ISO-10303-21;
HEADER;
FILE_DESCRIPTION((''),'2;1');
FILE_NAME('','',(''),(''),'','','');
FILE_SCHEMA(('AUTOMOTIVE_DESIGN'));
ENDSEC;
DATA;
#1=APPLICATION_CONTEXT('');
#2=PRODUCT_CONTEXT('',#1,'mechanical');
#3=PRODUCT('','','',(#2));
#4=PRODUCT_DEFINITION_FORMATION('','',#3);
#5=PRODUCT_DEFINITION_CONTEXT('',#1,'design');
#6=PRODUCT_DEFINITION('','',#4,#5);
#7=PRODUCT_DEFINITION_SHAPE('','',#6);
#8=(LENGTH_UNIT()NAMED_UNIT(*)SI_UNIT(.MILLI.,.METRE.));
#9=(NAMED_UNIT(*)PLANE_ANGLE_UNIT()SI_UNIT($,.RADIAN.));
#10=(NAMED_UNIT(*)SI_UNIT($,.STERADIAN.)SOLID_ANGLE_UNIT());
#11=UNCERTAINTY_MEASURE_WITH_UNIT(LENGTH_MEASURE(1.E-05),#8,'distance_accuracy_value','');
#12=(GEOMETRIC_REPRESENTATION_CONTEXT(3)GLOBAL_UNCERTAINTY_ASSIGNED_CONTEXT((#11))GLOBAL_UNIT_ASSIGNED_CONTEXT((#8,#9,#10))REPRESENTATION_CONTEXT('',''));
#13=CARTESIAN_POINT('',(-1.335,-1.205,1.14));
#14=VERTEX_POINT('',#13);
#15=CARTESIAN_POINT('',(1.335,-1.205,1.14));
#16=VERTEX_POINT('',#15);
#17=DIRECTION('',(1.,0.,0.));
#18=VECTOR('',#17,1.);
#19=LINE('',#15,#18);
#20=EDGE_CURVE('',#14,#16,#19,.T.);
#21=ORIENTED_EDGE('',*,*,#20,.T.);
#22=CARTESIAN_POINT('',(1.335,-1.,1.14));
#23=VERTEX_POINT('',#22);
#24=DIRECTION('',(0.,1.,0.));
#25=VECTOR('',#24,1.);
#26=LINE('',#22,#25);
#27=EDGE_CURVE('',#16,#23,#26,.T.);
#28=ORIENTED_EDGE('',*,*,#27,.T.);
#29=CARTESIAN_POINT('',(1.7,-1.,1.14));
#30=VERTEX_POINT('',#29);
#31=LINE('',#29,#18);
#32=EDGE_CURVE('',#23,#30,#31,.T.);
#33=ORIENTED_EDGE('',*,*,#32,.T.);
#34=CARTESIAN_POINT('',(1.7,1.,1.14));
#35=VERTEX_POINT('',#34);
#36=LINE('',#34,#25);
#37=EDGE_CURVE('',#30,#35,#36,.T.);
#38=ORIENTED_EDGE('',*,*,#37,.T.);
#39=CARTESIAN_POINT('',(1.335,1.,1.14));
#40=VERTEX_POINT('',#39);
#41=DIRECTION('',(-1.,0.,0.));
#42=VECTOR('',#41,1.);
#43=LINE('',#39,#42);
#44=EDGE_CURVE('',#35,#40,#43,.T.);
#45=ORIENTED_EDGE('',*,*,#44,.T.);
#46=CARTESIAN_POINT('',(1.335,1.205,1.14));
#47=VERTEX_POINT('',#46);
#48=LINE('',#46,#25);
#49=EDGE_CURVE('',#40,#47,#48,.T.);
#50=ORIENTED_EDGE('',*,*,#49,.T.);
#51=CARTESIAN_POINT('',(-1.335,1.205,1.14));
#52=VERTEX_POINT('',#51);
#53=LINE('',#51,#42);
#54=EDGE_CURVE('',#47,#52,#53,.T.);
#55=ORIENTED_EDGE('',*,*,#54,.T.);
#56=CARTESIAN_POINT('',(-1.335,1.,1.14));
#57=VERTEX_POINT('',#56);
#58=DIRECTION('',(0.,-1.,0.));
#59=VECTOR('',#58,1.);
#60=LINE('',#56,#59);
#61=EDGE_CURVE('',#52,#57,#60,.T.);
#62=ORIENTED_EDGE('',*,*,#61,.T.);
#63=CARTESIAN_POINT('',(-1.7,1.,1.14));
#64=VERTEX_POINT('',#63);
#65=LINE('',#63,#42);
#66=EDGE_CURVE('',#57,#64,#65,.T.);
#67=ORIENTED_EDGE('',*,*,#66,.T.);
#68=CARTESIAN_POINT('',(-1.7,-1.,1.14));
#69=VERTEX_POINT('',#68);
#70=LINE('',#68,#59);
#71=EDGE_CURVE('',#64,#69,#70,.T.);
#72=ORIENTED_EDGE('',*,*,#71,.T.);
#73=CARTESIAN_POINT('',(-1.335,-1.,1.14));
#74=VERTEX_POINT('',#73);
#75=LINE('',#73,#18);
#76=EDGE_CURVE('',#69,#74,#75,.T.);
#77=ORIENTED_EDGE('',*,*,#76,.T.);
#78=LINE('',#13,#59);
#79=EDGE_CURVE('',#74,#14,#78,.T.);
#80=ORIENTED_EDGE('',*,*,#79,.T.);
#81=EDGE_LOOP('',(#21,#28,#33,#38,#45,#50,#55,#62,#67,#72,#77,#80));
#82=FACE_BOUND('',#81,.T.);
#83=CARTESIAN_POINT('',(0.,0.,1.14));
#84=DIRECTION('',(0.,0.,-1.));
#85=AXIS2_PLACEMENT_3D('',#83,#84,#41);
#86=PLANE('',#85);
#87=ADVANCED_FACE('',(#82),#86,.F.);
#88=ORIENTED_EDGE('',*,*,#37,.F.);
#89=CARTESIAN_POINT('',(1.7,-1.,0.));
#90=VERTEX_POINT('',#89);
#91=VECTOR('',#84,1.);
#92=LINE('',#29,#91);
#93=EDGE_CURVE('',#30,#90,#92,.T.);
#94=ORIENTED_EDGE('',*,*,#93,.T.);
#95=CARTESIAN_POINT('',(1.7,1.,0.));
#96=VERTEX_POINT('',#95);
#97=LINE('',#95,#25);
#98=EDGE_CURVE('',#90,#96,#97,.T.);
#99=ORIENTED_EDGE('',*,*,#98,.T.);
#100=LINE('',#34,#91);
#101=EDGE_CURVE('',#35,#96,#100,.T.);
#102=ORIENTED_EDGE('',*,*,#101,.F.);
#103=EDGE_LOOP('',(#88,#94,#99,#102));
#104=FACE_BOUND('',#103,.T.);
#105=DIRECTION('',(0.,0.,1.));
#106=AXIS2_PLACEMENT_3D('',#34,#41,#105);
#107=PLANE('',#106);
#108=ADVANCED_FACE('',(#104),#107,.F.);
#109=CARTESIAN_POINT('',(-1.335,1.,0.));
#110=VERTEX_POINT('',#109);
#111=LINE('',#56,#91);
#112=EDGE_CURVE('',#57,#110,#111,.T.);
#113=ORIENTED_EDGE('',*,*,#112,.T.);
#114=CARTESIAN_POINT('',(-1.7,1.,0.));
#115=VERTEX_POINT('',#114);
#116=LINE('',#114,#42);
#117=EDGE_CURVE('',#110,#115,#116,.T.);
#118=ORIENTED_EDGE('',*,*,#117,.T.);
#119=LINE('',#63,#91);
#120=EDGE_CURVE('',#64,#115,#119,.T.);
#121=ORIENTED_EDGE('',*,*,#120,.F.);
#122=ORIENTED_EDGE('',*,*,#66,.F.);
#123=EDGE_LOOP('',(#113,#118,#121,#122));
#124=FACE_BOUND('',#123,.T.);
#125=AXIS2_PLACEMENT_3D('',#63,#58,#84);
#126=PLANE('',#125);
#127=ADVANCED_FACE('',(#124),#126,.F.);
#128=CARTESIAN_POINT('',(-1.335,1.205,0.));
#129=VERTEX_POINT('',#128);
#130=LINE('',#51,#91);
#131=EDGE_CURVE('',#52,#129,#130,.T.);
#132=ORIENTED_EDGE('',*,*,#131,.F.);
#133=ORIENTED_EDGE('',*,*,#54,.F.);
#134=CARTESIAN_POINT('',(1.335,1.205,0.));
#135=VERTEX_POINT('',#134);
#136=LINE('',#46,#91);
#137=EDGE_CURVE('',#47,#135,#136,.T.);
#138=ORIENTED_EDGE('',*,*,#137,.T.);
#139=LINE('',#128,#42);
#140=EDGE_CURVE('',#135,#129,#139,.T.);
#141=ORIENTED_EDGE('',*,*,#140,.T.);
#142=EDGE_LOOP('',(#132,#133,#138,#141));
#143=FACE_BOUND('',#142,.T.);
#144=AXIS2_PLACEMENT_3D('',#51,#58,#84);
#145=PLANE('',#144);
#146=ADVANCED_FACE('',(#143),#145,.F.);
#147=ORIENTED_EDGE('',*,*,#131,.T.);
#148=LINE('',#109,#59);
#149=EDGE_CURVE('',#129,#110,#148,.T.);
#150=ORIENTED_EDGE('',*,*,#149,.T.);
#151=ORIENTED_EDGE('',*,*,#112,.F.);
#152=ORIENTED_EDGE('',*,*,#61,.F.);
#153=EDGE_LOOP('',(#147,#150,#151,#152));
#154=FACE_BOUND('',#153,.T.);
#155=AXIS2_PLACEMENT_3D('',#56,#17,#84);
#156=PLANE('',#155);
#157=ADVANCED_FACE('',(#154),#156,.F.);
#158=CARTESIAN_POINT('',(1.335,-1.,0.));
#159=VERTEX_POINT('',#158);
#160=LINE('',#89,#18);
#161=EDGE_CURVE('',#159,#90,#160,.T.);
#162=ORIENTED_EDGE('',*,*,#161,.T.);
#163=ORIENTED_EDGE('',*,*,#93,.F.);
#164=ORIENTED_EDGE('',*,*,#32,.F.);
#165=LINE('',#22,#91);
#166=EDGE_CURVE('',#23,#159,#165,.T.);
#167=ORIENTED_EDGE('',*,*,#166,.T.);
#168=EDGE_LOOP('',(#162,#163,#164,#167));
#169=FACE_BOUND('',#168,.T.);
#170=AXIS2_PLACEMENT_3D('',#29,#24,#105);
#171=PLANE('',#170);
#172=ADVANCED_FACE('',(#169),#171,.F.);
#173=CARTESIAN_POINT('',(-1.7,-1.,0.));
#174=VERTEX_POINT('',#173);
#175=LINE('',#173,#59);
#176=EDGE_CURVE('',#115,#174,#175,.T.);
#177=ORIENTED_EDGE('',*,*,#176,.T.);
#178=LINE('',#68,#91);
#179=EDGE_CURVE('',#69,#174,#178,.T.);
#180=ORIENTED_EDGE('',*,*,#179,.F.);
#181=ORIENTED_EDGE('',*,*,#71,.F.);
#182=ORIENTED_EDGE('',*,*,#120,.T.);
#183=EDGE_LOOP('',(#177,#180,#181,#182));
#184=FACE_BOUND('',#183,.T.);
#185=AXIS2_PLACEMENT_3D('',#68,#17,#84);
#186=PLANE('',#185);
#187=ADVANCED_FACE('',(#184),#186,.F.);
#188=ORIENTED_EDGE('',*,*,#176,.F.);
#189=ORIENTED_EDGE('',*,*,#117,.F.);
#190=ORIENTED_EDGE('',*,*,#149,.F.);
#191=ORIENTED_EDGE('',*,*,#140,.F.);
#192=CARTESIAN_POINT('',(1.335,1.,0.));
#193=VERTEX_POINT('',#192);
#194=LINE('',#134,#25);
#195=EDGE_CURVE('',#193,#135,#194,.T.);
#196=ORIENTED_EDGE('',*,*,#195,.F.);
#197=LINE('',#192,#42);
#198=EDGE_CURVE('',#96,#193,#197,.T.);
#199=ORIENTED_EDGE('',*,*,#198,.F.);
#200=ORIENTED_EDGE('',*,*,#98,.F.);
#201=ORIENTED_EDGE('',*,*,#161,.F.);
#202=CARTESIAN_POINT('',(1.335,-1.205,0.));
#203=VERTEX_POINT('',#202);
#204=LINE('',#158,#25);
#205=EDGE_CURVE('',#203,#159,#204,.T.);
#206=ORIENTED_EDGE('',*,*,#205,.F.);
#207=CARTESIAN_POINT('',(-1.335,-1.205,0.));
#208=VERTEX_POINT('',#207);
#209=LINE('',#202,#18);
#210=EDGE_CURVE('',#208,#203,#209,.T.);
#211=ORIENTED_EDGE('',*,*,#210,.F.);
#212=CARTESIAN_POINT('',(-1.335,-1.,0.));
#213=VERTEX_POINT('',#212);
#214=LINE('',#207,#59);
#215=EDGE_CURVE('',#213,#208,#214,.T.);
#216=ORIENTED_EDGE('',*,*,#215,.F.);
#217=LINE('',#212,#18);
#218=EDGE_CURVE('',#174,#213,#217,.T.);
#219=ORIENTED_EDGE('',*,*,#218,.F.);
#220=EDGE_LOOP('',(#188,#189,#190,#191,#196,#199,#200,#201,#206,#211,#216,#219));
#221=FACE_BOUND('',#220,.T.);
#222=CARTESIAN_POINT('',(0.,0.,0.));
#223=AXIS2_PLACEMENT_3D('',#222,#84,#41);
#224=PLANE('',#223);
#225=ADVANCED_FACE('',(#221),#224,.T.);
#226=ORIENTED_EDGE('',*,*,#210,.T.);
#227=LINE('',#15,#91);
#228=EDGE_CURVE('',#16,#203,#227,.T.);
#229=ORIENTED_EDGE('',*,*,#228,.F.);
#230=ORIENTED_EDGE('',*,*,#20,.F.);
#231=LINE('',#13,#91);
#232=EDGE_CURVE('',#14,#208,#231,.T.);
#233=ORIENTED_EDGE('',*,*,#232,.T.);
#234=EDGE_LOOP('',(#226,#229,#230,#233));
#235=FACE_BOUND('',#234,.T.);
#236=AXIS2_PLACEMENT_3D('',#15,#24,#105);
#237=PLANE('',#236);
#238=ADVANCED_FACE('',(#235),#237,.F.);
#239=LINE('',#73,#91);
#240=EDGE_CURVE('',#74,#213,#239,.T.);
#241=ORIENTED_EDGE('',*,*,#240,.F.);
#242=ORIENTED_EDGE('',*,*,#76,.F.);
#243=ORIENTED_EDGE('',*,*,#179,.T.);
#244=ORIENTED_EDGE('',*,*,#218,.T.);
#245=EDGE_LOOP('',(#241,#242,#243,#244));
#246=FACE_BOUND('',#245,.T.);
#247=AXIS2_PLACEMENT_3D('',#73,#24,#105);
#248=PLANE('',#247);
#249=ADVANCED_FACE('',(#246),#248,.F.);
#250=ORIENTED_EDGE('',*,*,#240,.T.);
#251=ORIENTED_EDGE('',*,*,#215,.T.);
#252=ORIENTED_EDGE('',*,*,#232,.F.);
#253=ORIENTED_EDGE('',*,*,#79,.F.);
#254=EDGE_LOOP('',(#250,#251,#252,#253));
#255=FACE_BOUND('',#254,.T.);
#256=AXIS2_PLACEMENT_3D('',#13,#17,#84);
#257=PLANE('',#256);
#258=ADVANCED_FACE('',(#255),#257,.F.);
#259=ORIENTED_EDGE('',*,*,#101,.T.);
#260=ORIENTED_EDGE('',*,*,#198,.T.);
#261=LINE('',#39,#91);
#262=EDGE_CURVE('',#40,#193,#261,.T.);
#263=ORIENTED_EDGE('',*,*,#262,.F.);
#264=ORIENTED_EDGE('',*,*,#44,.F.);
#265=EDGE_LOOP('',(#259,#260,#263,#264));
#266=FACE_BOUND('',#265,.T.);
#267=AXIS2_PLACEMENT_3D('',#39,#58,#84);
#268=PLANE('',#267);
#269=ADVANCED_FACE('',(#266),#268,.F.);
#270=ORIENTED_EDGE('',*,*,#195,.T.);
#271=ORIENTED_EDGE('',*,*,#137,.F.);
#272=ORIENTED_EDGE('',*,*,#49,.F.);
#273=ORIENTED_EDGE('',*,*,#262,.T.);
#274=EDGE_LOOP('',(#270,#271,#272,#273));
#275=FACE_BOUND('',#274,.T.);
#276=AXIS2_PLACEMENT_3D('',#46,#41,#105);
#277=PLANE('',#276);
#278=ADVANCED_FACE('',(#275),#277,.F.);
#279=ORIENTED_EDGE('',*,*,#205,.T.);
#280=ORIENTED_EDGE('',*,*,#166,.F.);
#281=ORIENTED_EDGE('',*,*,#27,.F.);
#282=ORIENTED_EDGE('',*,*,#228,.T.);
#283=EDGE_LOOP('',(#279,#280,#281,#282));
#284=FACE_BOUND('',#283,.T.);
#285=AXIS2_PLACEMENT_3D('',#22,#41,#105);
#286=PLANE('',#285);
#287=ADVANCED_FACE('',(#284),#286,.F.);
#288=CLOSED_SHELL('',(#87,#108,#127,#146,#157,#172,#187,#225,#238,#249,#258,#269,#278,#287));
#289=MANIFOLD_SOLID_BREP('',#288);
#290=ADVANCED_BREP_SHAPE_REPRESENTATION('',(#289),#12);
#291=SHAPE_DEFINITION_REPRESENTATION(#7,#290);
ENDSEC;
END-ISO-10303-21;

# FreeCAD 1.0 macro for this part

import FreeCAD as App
import Part
import Sketcher

V = App.Vector
Q = App.Units.Quantity


def add_polygon(sketch, points):
    """Adds a closed chain of lines whose ends are joined by coincident constraints."""
    first, n = sketch.GeometryCount, len(points)
    for a, b in zip(points, points[1:] + points[:1]):
        sketch.addGeometry(Part.LineSegment(App.Vector(*a, 0), App.Vector(*b, 0)), False)
    for i in range(n):
        sketch.addConstraint(Sketcher.Constraint("Coincident", first + i, 2, first + (i + 1) % n, 1))

doc = App.newDocument("Part")
body = doc.addObject("PartDesign::Body", "Body")

sketch1 = body.newObject("Sketcher::SketchObject", "Sketch")
sketch1.AttachmentSupport = (doc.getObject("XY_Plane"), [""])
sketch1.MapMode = "FlatFace"
add_polygon(sketch1, [(-1.33, 1), (-1.7, 1), (-1.7, -1), (-1.33, -1), (-1.33, -1.21), (1.33, -1.21), (1.33, -1), (1.7, -1), (1.7, 1), (1.33, 1), (1.33, 1.21), (-1.33, 1.21)])
sketch1.addConstraint([
    Sketcher.Constraint("Horizontal", 0),
    Sketcher.Constraint("Vertical", 1),
    Sketcher.Constraint("Horizontal", 2),
    Sketcher.Constraint("Vertical", 3),
    Sketcher.Constraint("Horizontal", 4),
    Sketcher.Constraint("Vertical", 5),
    Sketcher.Constraint("Horizontal", 6),
    Sketcher.Constraint("Vertical", 7),
    Sketcher.Constraint("Horizontal", 8),
    Sketcher.Constraint("Vertical", 9),
    Sketcher.Constraint("Horizontal", 10),
    Sketcher.Constraint("Vertical", 11),
    Sketcher.Constraint("Symmetric", 0, 2, 6, 2, -1, 1),
    Sketcher.Constraint("Symmetric", 2, 2, 8, 2, -1, 1),
    Sketcher.Constraint("Symmetric", 4, 2, 10, 2, -1, 1),
    Sketcher.Constraint("Symmetric", 2, 2, 5, 2, -2),
    Sketcher.Constraint("DistanceY", 1, 2, 1, 1, Q("2 mm")),
    Sketcher.Constraint("DistanceX", 4, 1, 4, 2, Q("2.67 mm")),
    Sketcher.Constraint("DistanceX", 0, 2, -1, 1, Q("1.7 mm")),
    Sketcher.Constraint("DistanceY", 3, 2, 3, 1, Q("0.205 mm")),
])
pad1 = body.newObject("PartDesign::Pad", "Pad")
pad1.Profile = sketch1
pad1.Length = 1.14

doc.recompute()
